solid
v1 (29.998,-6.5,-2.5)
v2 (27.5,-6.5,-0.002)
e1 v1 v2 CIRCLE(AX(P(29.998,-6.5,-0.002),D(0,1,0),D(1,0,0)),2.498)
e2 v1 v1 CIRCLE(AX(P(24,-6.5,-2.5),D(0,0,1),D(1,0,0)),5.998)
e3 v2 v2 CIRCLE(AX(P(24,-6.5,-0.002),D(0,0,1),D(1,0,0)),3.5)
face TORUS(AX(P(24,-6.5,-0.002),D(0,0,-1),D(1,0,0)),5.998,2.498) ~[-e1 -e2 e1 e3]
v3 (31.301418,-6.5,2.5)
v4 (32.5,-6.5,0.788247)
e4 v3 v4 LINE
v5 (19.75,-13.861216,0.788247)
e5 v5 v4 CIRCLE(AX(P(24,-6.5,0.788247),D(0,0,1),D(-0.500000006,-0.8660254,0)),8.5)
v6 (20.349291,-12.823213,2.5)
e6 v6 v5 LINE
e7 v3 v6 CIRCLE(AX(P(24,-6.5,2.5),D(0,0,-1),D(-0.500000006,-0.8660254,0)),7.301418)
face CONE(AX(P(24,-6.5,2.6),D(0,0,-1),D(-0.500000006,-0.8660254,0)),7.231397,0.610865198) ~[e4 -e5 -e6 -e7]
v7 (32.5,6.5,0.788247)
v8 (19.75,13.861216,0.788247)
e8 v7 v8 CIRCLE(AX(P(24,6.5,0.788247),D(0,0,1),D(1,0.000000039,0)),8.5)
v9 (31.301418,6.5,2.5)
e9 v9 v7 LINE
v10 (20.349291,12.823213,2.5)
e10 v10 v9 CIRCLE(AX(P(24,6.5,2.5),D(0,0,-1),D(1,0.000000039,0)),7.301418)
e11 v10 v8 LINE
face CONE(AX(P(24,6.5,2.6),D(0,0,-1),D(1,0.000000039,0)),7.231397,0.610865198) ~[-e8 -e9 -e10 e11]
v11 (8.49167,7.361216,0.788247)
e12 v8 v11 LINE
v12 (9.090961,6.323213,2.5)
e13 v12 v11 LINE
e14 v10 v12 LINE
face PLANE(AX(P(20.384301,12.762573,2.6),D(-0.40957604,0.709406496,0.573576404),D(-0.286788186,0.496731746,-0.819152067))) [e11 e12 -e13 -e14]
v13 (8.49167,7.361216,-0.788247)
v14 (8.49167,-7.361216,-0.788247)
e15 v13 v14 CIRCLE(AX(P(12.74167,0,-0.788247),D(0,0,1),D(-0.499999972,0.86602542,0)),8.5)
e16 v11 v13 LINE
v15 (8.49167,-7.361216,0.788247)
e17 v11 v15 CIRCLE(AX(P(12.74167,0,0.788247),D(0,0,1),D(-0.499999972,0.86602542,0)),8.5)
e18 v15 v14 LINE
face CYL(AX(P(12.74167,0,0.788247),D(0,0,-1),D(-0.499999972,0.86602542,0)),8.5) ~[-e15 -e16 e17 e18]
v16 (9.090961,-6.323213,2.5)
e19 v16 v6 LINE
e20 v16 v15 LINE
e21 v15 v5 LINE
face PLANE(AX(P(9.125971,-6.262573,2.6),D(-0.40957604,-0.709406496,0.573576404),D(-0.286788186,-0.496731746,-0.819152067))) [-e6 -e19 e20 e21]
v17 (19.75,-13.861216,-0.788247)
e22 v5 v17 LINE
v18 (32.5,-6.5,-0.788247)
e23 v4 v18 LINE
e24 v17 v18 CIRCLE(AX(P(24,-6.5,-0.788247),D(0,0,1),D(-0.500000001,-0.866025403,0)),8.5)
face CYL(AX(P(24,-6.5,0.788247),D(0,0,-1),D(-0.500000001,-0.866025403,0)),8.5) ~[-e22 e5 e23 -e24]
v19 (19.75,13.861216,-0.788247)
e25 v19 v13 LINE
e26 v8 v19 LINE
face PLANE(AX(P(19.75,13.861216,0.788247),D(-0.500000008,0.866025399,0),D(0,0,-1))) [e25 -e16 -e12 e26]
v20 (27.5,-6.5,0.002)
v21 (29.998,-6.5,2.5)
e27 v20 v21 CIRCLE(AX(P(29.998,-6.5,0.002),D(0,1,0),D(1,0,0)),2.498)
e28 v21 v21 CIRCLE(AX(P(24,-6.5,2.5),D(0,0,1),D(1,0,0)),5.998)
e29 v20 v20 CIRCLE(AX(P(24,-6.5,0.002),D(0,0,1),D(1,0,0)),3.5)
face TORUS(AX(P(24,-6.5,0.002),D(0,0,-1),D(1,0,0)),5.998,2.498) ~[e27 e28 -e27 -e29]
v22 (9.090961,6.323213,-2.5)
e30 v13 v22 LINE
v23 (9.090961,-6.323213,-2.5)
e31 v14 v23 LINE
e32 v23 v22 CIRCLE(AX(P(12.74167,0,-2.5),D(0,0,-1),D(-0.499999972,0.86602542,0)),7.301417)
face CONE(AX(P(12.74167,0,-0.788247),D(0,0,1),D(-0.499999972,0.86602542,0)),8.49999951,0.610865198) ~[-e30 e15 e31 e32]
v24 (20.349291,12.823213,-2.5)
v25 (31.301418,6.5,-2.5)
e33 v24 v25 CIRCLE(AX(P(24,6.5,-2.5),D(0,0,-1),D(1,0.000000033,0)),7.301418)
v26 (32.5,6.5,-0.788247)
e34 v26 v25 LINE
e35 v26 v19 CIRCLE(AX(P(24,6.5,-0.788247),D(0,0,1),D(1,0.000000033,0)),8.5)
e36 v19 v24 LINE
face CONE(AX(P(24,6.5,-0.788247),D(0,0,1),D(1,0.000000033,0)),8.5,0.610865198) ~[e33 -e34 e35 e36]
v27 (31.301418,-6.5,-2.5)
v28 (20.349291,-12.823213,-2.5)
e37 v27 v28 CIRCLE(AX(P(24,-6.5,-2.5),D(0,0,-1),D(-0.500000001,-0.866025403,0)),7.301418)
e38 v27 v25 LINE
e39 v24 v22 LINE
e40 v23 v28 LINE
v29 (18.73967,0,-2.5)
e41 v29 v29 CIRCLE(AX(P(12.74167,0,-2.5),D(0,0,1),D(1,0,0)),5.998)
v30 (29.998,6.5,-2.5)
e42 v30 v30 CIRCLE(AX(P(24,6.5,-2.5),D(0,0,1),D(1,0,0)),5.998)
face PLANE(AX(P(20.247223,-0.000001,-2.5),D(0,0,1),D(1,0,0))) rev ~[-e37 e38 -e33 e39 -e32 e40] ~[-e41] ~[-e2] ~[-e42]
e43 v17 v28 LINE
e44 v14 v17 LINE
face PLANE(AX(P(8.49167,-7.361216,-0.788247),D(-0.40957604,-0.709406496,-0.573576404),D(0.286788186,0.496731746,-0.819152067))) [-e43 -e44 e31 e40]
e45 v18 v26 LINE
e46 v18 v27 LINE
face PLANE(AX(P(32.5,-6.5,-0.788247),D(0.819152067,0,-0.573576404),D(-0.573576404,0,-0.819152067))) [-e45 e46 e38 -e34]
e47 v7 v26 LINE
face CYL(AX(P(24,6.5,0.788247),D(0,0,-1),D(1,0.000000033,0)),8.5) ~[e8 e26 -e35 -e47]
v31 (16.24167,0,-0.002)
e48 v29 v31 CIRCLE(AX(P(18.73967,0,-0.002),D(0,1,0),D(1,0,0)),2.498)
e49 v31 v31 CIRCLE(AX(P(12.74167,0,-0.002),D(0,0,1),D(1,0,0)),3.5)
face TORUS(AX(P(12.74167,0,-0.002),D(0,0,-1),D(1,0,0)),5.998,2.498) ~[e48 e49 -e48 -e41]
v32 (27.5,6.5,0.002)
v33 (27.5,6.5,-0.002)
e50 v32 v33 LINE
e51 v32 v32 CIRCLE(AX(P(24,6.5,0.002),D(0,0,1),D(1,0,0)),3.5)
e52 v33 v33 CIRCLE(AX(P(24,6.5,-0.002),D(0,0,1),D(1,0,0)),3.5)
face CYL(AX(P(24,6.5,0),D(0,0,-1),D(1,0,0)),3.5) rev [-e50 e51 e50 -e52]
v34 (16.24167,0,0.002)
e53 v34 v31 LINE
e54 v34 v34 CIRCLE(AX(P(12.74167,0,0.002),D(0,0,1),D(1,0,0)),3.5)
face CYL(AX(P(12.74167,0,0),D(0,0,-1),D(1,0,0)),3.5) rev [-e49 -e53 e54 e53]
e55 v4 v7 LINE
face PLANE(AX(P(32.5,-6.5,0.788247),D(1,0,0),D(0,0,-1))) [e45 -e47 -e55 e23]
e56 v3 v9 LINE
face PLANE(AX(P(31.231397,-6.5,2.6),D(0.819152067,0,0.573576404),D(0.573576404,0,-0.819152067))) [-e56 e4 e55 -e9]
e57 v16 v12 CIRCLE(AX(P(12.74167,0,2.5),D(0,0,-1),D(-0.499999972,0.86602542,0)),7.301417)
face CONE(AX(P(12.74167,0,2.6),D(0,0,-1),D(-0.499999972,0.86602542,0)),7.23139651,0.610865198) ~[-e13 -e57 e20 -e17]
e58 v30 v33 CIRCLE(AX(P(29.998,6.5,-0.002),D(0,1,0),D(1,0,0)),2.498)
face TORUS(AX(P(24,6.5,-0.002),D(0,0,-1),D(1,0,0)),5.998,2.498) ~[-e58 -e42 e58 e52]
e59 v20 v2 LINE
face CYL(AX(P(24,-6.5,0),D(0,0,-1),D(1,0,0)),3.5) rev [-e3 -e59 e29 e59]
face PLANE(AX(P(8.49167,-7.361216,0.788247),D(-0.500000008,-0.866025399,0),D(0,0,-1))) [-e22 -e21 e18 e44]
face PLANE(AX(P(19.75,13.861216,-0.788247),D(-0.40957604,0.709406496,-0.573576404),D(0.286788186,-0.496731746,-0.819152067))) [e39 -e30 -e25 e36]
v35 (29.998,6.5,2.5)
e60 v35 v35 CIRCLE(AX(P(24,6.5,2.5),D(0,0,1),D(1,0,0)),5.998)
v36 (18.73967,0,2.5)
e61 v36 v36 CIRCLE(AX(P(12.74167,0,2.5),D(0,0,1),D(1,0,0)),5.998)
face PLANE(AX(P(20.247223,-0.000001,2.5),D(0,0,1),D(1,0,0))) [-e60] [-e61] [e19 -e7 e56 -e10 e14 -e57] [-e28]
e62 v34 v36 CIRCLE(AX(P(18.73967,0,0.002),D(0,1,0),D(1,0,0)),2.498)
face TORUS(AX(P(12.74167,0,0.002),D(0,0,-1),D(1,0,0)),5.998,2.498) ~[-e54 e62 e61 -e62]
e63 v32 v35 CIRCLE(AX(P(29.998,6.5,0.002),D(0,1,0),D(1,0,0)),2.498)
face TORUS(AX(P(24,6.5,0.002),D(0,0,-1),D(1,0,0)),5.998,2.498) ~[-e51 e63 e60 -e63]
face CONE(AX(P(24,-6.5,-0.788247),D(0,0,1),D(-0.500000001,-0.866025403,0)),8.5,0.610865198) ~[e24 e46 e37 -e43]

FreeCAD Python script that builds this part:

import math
import FreeCAD as App
import Part
import Sketcher
Q = App.Units.Quantity


def edges_at(feature, points):
    """Names of the edges that pass closest to the given points."""
    edges = feature.Shape.Edges
    near = lambda p: min(range(len(edges)), key=lambda i: edges[i].distToShape(Part.Vertex(*p))[0])
    return sorted({f"Edge{near(p) + 1}" for p in points})

doc = App.newDocument("Part")
body = doc.addObject("PartDesign::Body", "Body")

# Sketch on XY plane
sketch1 = body.newObject("Sketcher::SketchObject", "Sketch")
sketch1.AttachmentSupport = (doc.getObject("XY_Plane"), [""])
sketch1.MapMode = "FlatFace"
sketch1.addGeometry(Part.ArcOfCircle(Part.Circle(App.Vector(0, 6.5, 0), App.Vector(0, 0, 1), 8.6), math.radians(0.000003), math.radians(120)), False)
sketch1.addGeometry(Part.LineSegment(App.Vector(-4.3, 13.947818, 0), App.Vector(-15.55833, 7.447818, 0)), False)
sketch1.addGeometry(Part.ArcOfCircle(Part.Circle(App.Vector(-11.258331, 0, 0), App.Vector(0, 0, 1), 8.599999), math.radians(119.999997), math.radians(240.000003)), False)
sketch1.addGeometry(Part.LineSegment(App.Vector(-15.55833, -7.447818, 0), App.Vector(-4.299965, -13.947839, 0)), False)
sketch1.addGeometry(Part.ArcOfCircle(Part.Circle(App.Vector(-0.000001, -6.499999, 0), App.Vector(0, 0, 1), 8.600001), math.radians(-119.999723), math.radians(0.000014)), False)
sketch1.addGeometry(Part.LineSegment(App.Vector(8.6, -6.499997, 0), App.Vector(8.6, 6.5, 0)), False)
sketch1.addGeometry(Part.Circle(App.Vector(0, -6.5, 0), App.Vector(0, 0, 1), 3.5), False)
sketch1.addGeometry(Part.Circle(App.Vector(-11.25833, 0, 0), App.Vector(0, 0, 1), 3.5), False)
sketch1.addGeometry(Part.Circle(App.Vector(0, 6.5, 0), App.Vector(0, 0, 1), 3.5), False)
sketch1.addConstraint(Sketcher.Constraint("Tangent", 0, 2, 1, 1))
sketch1.addConstraint(Sketcher.Constraint("Tangent", 1, 2, 2, 1))
sketch1.addConstraint(Sketcher.Constraint("Tangent", 2, 2, 3, 1))
sketch1.addConstraint(Sketcher.Constraint("Coincident", 3, 2, 4, 1))
sketch1.addConstraint(Sketcher.Constraint("Tangent", 4, 2, 5, 1))
sketch1.addConstraint(Sketcher.Constraint("Tangent", 5, 2, 0, 1))
sketch1.addConstraint(Sketcher.Constraint("Vertical", 5))
sketch1.addConstraint(Sketcher.Constraint("Coincident", 6, 3, 4, 3))
sketch1.addConstraint(Sketcher.Constraint("Coincident", 7, 3, 2, 3))
sketch1.addConstraint(Sketcher.Constraint("Coincident", 8, 3, 0, 3))
sketch1.addConstraint(Sketcher.Constraint("Equal", 0, 2))
sketch1.addConstraint(Sketcher.Constraint("Equal", 2, 4))
sketch1.addConstraint(Sketcher.Constraint("Equal", 6, 7))
sketch1.addConstraint(Sketcher.Constraint("Equal", 7, 8))
sketch1.addConstraint(Sketcher.Constraint("Symmetric", 0, 3, 4, 3, -1, 1))
sketch1.addConstraint(Sketcher.Constraint("PointOnObject", 2, 3, -1))
sketch1.addConstraint(Sketcher.Constraint("Diameter", 6, Q("7 mm")))
sketch1.addConstraint(Sketcher.Constraint("Radius", 0, Q("8.6 mm")))
sketch1.addConstraint(Sketcher.Constraint("Angle", 1, Q("-149.999999 deg")))
sketch1.addConstraint(Sketcher.Constraint("Distance", 1, Q("13 mm")))
sketch1.addConstraint(Sketcher.Constraint("Distance", 3, Q("13.000041 mm")))
pad1 = body.newObject("PartDesign::Pad", "Pad")
pad1.Profile = sketch1
pad1.Length = 5
pad1.Midplane = True

# Sketch on XZ plane
sketch2 = body.newObject("Sketcher::SketchObject", "Sketch001")
sketch2.AttachmentSupport = (doc.getObject("XZ_Plane"), [""])
sketch2.MapMode = "FlatFace"
sketch2.addGeometry(Part.LineSegment(App.Vector(7.231397, 2.6, 0), App.Vector(8.5, 0.788247, 0)), False)
sketch2.addGeometry(Part.LineSegment(App.Vector(8.5, 0.788247, 0), App.Vector(8.5, -0.788247, 0)), False)
sketch2.addGeometry(Part.LineSegment(App.Vector(8.5, -0.788247, 0), App.Vector(7.231397, -2.6, 0)), False)
sketch2.addGeometry(Part.LineSegment(App.Vector(7.231397, -2.6, 0), App.Vector(9, -2.6, 0)), False)
sketch2.addGeometry(Part.LineSegment(App.Vector(9, -2.6, 0), App.Vector(9, 2.6, 0)), False)
sketch2.addGeometry(Part.LineSegment(App.Vector(9, 2.6, 0), App.Vector(7.231397, 2.6, 0)), False)
sketch2.addConstraint(Sketcher.Constraint("Coincident", 0, 2, 1, 1))
sketch2.addConstraint(Sketcher.Constraint("Coincident", 1, 2, 2, 1))
sketch2.addConstraint(Sketcher.Constraint("Coincident", 2, 2, 3, 1))
sketch2.addConstraint(Sketcher.Constraint("Coincident", 3, 2, 4, 1))
sketch2.addConstraint(Sketcher.Constraint("Coincident", 4, 2, 5, 1))
sketch2.addConstraint(Sketcher.Constraint("Coincident", 5, 2, 0, 1))
sketch2.addConstraint(Sketcher.Constraint("Vertical", 1))
sketch2.addConstraint(Sketcher.Constraint("Horizontal", 3))
sketch2.addConstraint(Sketcher.Constraint("Vertical", 4))
sketch2.addConstraint(Sketcher.Constraint("Horizontal", 5))
sketch2.addConstraint(Sketcher.Constraint("Symmetric", 2, 2, 5, 2, -1))
sketch2.addConstraint(Sketcher.Constraint("Equal", 0, 2))
sketch2.addConstraint(Sketcher.Constraint("Angle", 0, Q("-55.000002 deg")))
sketch2.addConstraint(Sketcher.Constraint("DistanceY", 4, 1, 4, 2, Q("5.2 mm")))
sketch2.addConstraint(Sketcher.Constraint("DistanceX", -1, 1, 3, 2, Q("9 mm")))
sketch2.addConstraint(Sketcher.Constraint("DistanceX", -1, 1, 0, 2, Q("8.5 mm")))
sketch2.addConstraint(Sketcher.Constraint("Distance", 0, Q("2.211742 mm")))

# Sketch on XY plane
sketch3 = body.newObject("Sketcher::SketchObject", "Sketch002")
sketch3.AttachmentSupport = (doc.getObject("XY_Plane"), [""])
sketch3.MapMode = "FlatFace"
sketch3.addGeometry(Part.ArcOfCircle(Part.Circle(App.Vector(0, 6.5, 0), App.Vector(0, 0, 1), 8.75), math.radians(0.000002), math.radians(120)), False)
sketch3.addGeometry(Part.LineSegment(App.Vector(-4.375, 14.077722, 0), App.Vector(-15.63333, 7.577722, 0)), False)
sketch3.addGeometry(Part.ArcOfCircle(Part.Circle(App.Vector(-11.25833, 0, 0), App.Vector(0, 0, 1), 8.75), math.radians(119.999998), math.radians(240.000002)), False)
sketch3.addGeometry(Part.LineSegment(App.Vector(-15.63333, -7.577722, 0), App.Vector(-4.375, -14.077722, 0)), False)
sketch3.addGeometry(Part.ArcOfCircle(Part.Circle(App.Vector(0, -6.5, 0), App.Vector(0, 0, 1), 8.75), math.radians(-120), math.radians(-0.000002)), False)
sketch3.addGeometry(Part.LineSegment(App.Vector(8.75, -6.5, 0), App.Vector(8.75, 6.5, 0)), False)
sketch3.addConstraint(Sketcher.Constraint("Tangent", 0, 2, 1, 1))
sketch3.addConstraint(Sketcher.Constraint("Tangent", 1, 2, 2, 1))
sketch3.addConstraint(Sketcher.Constraint("Tangent", 2, 2, 3, 1))
sketch3.addConstraint(Sketcher.Constraint("Tangent", 3, 2, 4, 1))
sketch3.addConstraint(Sketcher.Constraint("Tangent", 4, 2, 5, 1))
sketch3.addConstraint(Sketcher.Constraint("Tangent", 5, 2, 0, 1))
sketch3.addConstraint(Sketcher.Constraint("Vertical", 5))
sketch3.addConstraint(Sketcher.Constraint("Equal", 0, 2))
sketch3.addConstraint(Sketcher.Constraint("Equal", 2, 4))
sketch3.addConstraint(Sketcher.Constraint("Symmetric", 0, 3, 4, 3, -1, 1))
sketch3.addConstraint(Sketcher.Constraint("PointOnObject", 2, 3, -1))
sketch3.addConstraint(Sketcher.Constraint("DistanceY", 5, 1, 5, 2, Q("13 mm")))
sketch3.addConstraint(Sketcher.Constraint("Angle", 1, Q("-149.999999 deg")))
sketch3.addConstraint(Sketcher.Constraint("Radius", 0, Q("8.75 mm")))
doc.recompute()

subtractivepipe = body.newObject("PartDesign::SubtractivePipe", "SubtractivePipe")
subtractivepipe.Profile = sketch2
subtractivepipe.Spine = (sketch3, ["Edge1", "Edge2", "Edge3", "Edge4", "Edge5", "Edge6"])
doc.recompute()

fillet = body.newObject("PartDesign::Fillet", "Fillet")
fillet.Base = (subtractivepipe, edges_at(subtractivepipe, [
    (-3.5, -6.5, -2.5),
    (-3.5, 6.5, -2.5),
    (-14.758, 0, -2.5),
    (-3.5, -6.5, 2.5),
    (-3.5, 6.5, 2.5),
    (-14.758, 0, 2.5),
]))
fillet.Radius = 2.498
body2 = doc.addObject("PartDesign::Body", "Body001")
doc.recompute()

body.Placement = App.Placement(App.Vector(24, 0, 0), App.Rotation(App.Vector(0, 0, 1), 0))
boolean = body2.newObject("PartDesign::Boolean", "Boolean")
boolean.Type = "Fuse"
boolean.addObjects([body])

doc.recompute()
